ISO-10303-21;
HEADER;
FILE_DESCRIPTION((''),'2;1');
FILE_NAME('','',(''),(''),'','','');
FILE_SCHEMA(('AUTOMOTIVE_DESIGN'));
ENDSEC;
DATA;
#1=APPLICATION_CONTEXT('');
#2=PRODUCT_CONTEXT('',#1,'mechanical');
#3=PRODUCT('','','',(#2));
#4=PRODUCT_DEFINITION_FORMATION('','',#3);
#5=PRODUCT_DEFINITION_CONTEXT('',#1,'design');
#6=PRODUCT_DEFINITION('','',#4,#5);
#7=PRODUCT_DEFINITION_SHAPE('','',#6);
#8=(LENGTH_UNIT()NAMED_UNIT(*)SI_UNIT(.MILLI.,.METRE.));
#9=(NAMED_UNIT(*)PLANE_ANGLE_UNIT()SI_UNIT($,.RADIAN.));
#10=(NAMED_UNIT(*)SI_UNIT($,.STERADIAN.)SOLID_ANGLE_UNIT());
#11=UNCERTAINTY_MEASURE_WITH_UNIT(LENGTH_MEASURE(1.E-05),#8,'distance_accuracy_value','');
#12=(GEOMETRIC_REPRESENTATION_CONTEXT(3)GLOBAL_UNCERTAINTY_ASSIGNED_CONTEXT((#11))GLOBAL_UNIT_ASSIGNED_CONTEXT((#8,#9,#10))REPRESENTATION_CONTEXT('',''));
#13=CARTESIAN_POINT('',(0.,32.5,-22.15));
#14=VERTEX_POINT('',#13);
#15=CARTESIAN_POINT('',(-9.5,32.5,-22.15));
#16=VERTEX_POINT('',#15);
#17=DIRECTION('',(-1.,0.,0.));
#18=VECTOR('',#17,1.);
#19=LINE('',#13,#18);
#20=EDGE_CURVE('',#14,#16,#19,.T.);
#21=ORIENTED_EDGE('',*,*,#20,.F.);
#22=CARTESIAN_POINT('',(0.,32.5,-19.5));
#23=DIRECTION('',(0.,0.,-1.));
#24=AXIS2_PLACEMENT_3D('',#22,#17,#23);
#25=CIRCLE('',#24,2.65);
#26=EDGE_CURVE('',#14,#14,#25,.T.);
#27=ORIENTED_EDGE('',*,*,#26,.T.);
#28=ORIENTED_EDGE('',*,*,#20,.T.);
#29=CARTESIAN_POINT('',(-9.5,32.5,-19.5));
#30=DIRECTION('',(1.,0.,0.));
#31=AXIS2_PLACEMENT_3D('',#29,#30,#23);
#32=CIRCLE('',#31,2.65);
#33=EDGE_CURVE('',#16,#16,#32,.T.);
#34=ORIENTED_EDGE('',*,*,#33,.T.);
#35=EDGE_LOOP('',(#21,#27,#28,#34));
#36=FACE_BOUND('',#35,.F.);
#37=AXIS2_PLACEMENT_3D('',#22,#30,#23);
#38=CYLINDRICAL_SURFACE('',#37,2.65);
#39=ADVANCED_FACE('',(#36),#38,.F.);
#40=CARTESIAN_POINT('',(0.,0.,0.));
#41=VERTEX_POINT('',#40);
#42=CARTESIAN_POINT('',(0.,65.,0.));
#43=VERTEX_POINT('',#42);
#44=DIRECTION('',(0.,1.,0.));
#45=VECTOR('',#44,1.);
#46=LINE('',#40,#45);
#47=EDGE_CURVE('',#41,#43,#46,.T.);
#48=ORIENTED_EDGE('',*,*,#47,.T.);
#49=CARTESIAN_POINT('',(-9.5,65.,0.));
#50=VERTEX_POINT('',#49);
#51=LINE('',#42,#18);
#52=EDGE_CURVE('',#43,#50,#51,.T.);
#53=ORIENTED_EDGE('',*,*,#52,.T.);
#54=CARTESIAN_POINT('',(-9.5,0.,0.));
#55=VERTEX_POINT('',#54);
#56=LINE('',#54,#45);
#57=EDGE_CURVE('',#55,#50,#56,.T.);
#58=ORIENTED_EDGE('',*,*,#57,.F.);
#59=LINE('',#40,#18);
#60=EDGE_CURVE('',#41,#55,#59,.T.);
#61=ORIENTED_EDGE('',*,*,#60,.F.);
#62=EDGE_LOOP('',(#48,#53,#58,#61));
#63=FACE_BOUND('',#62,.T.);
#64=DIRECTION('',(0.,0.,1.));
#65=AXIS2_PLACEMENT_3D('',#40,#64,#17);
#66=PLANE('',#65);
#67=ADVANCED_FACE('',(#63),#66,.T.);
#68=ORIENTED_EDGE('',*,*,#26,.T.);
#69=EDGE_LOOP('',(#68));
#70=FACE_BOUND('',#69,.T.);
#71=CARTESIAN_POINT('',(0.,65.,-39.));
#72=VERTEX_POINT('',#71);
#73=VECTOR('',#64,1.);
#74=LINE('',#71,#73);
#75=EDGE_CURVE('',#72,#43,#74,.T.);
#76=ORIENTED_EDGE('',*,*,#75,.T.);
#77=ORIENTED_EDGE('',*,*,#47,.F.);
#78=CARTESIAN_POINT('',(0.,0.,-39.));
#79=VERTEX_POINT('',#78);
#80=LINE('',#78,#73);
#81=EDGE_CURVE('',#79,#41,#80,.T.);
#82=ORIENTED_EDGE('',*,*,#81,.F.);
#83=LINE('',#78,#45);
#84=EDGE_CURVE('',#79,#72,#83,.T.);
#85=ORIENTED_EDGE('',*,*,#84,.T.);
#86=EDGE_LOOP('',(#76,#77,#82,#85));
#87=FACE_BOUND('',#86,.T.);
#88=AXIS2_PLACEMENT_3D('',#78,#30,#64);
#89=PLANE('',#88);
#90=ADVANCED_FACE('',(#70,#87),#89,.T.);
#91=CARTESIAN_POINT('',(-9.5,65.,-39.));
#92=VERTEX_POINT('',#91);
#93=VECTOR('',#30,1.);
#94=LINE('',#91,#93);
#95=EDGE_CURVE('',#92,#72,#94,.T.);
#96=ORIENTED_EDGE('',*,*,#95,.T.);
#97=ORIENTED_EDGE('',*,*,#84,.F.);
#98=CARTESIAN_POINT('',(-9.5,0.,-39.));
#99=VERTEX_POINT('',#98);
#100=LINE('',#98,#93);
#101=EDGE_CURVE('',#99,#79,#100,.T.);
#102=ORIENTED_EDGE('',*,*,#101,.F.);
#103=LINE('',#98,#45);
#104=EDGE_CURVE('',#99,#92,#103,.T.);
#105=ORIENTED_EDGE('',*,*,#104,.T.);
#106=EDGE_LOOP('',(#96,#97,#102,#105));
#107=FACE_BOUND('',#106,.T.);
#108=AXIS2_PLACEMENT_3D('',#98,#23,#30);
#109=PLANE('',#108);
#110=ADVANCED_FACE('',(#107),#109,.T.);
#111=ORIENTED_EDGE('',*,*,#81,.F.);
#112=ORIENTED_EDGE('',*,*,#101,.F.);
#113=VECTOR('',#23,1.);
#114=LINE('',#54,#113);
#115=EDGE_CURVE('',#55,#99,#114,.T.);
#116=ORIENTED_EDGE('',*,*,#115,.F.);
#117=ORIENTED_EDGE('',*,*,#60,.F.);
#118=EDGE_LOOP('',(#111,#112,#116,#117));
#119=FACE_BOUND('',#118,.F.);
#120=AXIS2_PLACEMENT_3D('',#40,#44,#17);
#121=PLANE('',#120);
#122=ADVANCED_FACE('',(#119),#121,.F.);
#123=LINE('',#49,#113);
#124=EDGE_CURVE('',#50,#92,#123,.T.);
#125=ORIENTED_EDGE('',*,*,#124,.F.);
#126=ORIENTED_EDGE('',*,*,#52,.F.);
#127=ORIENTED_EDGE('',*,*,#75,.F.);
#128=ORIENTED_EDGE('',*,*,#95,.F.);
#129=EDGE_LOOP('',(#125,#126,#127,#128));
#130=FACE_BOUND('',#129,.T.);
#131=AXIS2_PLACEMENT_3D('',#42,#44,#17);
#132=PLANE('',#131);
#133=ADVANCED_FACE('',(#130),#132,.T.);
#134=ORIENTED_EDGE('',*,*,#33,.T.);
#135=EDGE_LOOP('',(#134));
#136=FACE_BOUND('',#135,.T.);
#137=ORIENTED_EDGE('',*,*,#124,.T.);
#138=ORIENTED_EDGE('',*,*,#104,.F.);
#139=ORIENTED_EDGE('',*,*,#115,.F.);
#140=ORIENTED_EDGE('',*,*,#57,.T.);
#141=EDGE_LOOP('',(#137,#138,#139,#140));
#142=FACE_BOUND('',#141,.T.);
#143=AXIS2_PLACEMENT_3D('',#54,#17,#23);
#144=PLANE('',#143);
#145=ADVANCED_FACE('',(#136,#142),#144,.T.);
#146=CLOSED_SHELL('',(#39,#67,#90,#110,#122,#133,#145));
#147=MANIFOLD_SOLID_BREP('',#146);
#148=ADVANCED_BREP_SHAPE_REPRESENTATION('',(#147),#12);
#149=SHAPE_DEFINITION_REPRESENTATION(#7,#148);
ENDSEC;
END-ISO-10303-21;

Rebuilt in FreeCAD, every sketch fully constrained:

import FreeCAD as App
import Part
import Sketcher
from FreeCAD import Vector

doc = App.newDocument("Part")
params = doc.addObject("Spreadsheet::Sheet", "Params")
for row, (alias, value) in enumerate([
    ("sketch1_height", "39 mm"),
    ("sketch1_width", "9.5 mm"),
    ("pad1_length", "65 mm"),
    ("sketch2_diameter", "5.3 mm"),
], start=1):
    params.set(f"A{row}", alias)
    params.set(f"B{row}", "=" + value)
    params.setAlias(f"B{row}", alias)

body = doc.addObject("PartDesign::Body", "Body")

sketch1 = doc.addObject("Sketcher::SketchObject", "Sketch")
body.addObject(sketch1)
sketch1.AttachmentSupport = (doc.XZ_Plane, [""])
sketch1.MapMode = "FlatFace"
sketch1.addGeometry([
    Part.LineSegment(Vector(-9.5, 0, 0), Vector(0, 0, 0)),
    Part.LineSegment(Vector(0, 0, 0), Vector(0, -39, 0)),
    Part.LineSegment(Vector(0, -39, 0), Vector(-9.5, -39, 0)),
    Part.LineSegment(Vector(-9.5, -39, 0), Vector(-9.5, 0, 0)),
], False)
sketch1.addConstraint([
    Sketcher.Constraint("Coincident", 0, 2, 1, 1),
    Sketcher.Constraint("Coincident", 1, 2, 2, 1),
    Sketcher.Constraint("Coincident", 2, 2, 3, 1),
    Sketcher.Constraint("Coincident", 3, 2, 0, 1),
    Sketcher.Constraint("Horizontal", 0),
    Sketcher.Constraint("Vertical", 1),
    Sketcher.Constraint("Horizontal", 2),
    Sketcher.Constraint("Vertical", 3),
    Sketcher.Constraint("Coincident", 0, 2, -1, 1),
    Sketcher.Constraint("DistanceY", 1, 2, 1, 1, 39.0),
    Sketcher.Constraint("DistanceX", 0, 1, 0, 2, 9.5),
])
sketch1.setExpression("Constraints[9]", "Params.sketch1_height")
sketch1.setExpression("Constraints[10]", "Params.sketch1_width")
pad1 = doc.addObject("PartDesign::Pad", "Pad")
body.addObject(pad1)
pad1.Profile = sketch1
pad1.setExpression("Length", "Params.pad1_length")
pad1.Reversed = True

sketch2 = doc.addObject("Sketcher::SketchObject", "Sketch001")
body.addObject(sketch2)
sketch2.AttachmentSupport = (doc.YZ_Plane, [""])
sketch2.MapMode = "FlatFace"
sketch2.addGeometry(Part.Circle(Vector(32.5, -19.5, 0), Vector(0, 0, 1), 2.65), False)
sketch2.addConstraint([
    Sketcher.Constraint("Diameter", 0, 5.3),
    Sketcher.Constraint("DistanceX", -1, 1, 0, 3, 32.5),
    Sketcher.Constraint("DistanceY", 0, 3, -1, 1, 19.5),
])
sketch2.setExpression("Constraints[0]", "Params.sketch2_diameter")
pocket1 = doc.addObject("PartDesign::Pocket", "Pocket")
body.addObject(pocket1)
pocket1.Profile = sketch2
pocket1.Type = "ThroughAll"

doc.recompute()
